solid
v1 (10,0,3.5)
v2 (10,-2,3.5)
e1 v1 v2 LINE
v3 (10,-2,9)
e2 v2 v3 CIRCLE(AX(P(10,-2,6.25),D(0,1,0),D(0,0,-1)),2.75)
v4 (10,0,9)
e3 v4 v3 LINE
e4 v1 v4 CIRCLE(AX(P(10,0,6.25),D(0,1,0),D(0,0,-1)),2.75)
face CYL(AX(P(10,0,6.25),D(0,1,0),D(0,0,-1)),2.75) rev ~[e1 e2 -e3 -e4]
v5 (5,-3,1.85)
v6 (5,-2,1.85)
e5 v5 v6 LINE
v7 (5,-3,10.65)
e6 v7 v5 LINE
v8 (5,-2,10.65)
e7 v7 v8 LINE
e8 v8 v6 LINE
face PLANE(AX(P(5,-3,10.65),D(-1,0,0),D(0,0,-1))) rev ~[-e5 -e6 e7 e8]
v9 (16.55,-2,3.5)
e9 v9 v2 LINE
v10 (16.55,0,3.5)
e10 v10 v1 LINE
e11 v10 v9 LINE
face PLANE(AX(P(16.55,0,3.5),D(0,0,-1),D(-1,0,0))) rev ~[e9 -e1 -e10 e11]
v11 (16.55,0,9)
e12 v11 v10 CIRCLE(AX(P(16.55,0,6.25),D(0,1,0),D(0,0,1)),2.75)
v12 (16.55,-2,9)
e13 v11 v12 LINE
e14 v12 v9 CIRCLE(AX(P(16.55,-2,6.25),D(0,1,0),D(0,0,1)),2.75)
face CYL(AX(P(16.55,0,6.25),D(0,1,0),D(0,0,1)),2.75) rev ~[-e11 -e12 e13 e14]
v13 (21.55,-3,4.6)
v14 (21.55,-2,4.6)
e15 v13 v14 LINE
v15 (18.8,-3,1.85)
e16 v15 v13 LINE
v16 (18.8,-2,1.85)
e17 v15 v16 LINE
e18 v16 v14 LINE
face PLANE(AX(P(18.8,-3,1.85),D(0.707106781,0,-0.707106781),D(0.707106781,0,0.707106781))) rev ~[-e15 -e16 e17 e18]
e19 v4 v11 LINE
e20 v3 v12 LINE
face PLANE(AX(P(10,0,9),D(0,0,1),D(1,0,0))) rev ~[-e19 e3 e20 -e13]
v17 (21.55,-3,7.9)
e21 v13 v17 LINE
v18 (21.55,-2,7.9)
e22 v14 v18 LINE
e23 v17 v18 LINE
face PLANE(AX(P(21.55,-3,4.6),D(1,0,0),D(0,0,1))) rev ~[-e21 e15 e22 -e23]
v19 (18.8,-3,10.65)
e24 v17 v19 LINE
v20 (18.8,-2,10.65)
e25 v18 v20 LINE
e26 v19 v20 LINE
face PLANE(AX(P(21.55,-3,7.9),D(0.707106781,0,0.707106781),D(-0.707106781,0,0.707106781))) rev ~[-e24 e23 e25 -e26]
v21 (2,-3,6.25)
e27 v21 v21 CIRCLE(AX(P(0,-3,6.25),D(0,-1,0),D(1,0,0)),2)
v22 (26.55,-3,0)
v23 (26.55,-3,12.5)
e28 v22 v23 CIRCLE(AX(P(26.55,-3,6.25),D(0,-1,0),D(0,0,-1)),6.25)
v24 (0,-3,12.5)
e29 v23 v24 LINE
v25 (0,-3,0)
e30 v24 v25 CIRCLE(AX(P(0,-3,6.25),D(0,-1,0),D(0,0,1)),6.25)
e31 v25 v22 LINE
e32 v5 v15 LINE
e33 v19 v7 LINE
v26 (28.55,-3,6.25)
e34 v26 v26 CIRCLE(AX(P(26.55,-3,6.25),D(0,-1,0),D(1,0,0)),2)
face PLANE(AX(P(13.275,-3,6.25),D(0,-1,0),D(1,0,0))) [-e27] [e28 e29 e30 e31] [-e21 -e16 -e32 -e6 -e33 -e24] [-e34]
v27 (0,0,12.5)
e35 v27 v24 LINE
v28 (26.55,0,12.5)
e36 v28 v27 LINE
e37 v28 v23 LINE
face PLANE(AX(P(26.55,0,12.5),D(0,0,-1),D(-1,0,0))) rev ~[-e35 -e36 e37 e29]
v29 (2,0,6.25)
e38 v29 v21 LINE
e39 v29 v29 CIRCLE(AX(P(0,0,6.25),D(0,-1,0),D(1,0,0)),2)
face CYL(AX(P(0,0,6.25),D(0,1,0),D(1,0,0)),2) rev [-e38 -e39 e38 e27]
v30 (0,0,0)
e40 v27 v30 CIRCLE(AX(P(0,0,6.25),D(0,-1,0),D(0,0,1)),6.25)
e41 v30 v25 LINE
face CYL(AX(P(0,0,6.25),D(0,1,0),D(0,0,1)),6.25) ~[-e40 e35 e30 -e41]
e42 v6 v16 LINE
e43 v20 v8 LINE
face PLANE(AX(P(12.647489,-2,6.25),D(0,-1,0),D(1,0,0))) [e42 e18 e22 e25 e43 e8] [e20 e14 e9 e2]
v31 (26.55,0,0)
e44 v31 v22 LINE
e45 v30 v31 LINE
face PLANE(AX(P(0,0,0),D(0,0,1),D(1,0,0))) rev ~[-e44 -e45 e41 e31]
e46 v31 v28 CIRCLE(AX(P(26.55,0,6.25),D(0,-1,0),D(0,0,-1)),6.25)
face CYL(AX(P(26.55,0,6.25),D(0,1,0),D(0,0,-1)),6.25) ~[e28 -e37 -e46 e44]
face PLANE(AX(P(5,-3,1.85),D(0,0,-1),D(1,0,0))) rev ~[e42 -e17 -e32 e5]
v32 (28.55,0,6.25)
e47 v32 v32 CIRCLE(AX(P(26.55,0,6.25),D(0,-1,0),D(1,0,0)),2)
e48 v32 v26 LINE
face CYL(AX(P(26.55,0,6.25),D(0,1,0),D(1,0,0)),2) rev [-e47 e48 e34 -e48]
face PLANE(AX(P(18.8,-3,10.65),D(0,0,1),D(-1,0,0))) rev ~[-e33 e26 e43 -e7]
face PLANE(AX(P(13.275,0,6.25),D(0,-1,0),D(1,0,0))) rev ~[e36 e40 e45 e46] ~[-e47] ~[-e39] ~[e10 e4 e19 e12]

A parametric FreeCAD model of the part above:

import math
import FreeCAD as App
import Part
import Sketcher

V = App.Vector


def add_polygon(sketch, points):
    """Adds a closed chain of lines whose ends are joined by coincident constraints."""
    first, n = sketch.GeometryCount, len(points)
    for a, b in zip(points, points[1:] + points[:1]):
        sketch.addGeometry(Part.LineSegment(App.Vector(*a, 0), App.Vector(*b, 0)), False)
    for i in range(n):
        sketch.addConstraint(Sketcher.Constraint("Coincident", first + i, 2, first + (i + 1) % n, 1))

doc = App.newDocument("Part")
body = doc.addObject("PartDesign::Body", "Body")

# Sketch on XZ plane
sketch1 = body.newObject("Sketcher::SketchObject", "Sketch")
sketch1.AttachmentSupport = (doc.getObject("XZ_Plane"), [""])
sketch1.MapMode = "FlatFace"
sketch1.addGeometry([
    Part.LineSegment(V(26.6, 12.5, 0), V(0, 12.5, 0)),  # 0
    Part.ArcOfCircle(Part.Circle(V(0, 6.2, 0), V(0, 0, 1), 6.2), math.radians(90), math.radians(270)),  # 1
    Part.LineSegment(V(0, 0, 0), V(26.6, 0, 0)),  # 2
    Part.ArcOfCircle(Part.Circle(V(26.6, 6.2, 0), V(0, 0, 1), 6.2), math.radians(-90), math.radians(90)),  # 3
    Part.Circle(V(0, 6.2, 0), V(0, 0, 1), 2),  # 4
    Part.LineSegment(V(16.6, 3.5, 0), V(10, 3.5, 0)),  # 5
    Part.ArcOfCircle(Part.Circle(V(10, 6.2, 0), V(0, 0, 1), 2.8), math.radians(90), math.radians(270)),  # 6
    Part.LineSegment(V(10, 9, 0), V(16.6, 9, 0)),  # 7
    Part.ArcOfCircle(Part.Circle(V(16.6, 6.2, 0), V(0, 0, 1), 2.8), math.radians(-90), math.radians(90)),  # 8
    Part.Circle(V(26.6, 6.2, 0), V(0, 0, 1), 2),  # 9
], False)
sketch1.addConstraint([
    Sketcher.Constraint("Tangent", 0, 2, 1, 1),
    Sketcher.Constraint("Tangent", 1, 2, 2, 1),
    Sketcher.Constraint("Tangent", 2, 2, 3, 1),
    Sketcher.Constraint("Tangent", 3, 2, 0, 1),
    Sketcher.Constraint("Tangent", 5, 2, 6, 2),
    Sketcher.Constraint("Tangent", 6, 1, 7, 1),
    Sketcher.Constraint("Tangent", 7, 2, 8, 2),
    Sketcher.Constraint("Tangent", 8, 1, 5, 1),
    Sketcher.Constraint("Horizontal", 0),
    Sketcher.Constraint("Horizontal", 2),
    Sketcher.Constraint("Horizontal", 5),
    Sketcher.Constraint("Horizontal", 7),
    Sketcher.Constraint("Coincident", 1, 2, -1, 1),
    Sketcher.Constraint("Coincident", 4, 3, 1, 3),
    Sketcher.Constraint("Coincident", 9, 3, 3, 3),
    Sketcher.Constraint("Equal", 4, 9),
    Sketcher.Constraint("Horizontal", 4, 3, 6, 3),
    Sketcher.Constraint("Diameter", 4, 4.0),
    Sketcher.Constraint("Radius", 1, 6.25),
    Sketcher.Constraint("Radius", 6, 2.75),
    Sketcher.Constraint("DistanceX", -1, 1, 6, 3, 10.0),
    Sketcher.Constraint("DistanceX", 8, 3, 3, 3, 10.0),
    Sketcher.Constraint("DistanceX", 0, 2, 0, 1, 26.55),
])
pad1 = body.newObject("PartDesign::Pad", "Pad")
pad1.Profile = sketch1
pad1.Length = 3

# Sketch on XZ plane
sketch2 = body.newObject("Sketcher::SketchObject", "Sketch001")
sketch2.AttachmentSupport = (doc.getObject("XZ_Plane"), [""])
sketch2.MapMode = "FlatFace"
sketch2.AttachmentOffset = App.Placement(V(0, 0, 3), App.Rotation())
add_polygon(sketch2, [(21.6, 4.6), (21.6, 7.9), (18.8, 10.7), (5, 10.7), (5, 1.9), (18.8, 1.9)])  # lines 0-5
sketch2.addGeometry(Part.ArcOfCircle(Part.Circle(V(16.6, 6.2, 0), V(0, 0, 1), 2.8), math.radians(-90), math.radians(90)), False)  # 6
sketch2.addGeometry(Part.LineSegment(V(16.6, 3.5, 0), V(10, 3.5, 0)), False)  # 7
sketch2.addGeometry(Part.ArcOfCircle(Part.Circle(V(10, 6.2, 0), V(0, 0, 1), 2.8), math.radians(90), math.radians(270)), False)  # 8
sketch2.addGeometry(Part.LineSegment(V(10, 9, 0), V(16.6, 9, 0)), False)  # 9
sketch2.addConstraint([
    Sketcher.Constraint("Tangent", 6, 1, 7, 1),
    Sketcher.Constraint("Tangent", 7, 2, 8, 2),
    Sketcher.Constraint("Tangent", 8, 1, 9, 1),
    Sketcher.Constraint("Tangent", 9, 2, 6, 2),
    Sketcher.Constraint("Vertical", 0),
    Sketcher.Constraint("Horizontal", 2),
    Sketcher.Constraint("Vertical", 3),
    Sketcher.Constraint("Horizontal", 4),
    Sketcher.Constraint("Horizontal", 7),
    Sketcher.Constraint("Horizontal", 9),
    Sketcher.Constraint("Perpendicular", 1, 5),
    Sketcher.Constraint("Vertical", 1, 2, 4, 2),
    Sketcher.Constraint("Equal", 1, 5),
    Sketcher.Constraint("Radius", 6, 2.75),
    Sketcher.Constraint("DistanceX", 2, 2, 2, 1, 13.8),
    Sketcher.Constraint("DistanceY", 0, 1, 0, 2, 3.3),
    Sketcher.Constraint("DistanceY", 3, 2, 3, 1, 8.8),
    Sketcher.Constraint("DistanceX", -1, 1, 8, 3, 10.0),
    Sketcher.Constraint("DistanceX", -1, 1, 2, 2, 5.0),
    Sketcher.Constraint("DistanceY", -1, 1, 8, 1, 9.0),
    Sketcher.Constraint("DistanceX", 6, 3, 0, 2, 5.0),
    Sketcher.Constraint("DistanceY", -1, 1, 0, 2, 7.9),
])
pocket1 = body.newObject("PartDesign::Pocket", "Pocket")
pocket1.Profile = sketch2
pocket1.Length = 1

doc.recompute()
